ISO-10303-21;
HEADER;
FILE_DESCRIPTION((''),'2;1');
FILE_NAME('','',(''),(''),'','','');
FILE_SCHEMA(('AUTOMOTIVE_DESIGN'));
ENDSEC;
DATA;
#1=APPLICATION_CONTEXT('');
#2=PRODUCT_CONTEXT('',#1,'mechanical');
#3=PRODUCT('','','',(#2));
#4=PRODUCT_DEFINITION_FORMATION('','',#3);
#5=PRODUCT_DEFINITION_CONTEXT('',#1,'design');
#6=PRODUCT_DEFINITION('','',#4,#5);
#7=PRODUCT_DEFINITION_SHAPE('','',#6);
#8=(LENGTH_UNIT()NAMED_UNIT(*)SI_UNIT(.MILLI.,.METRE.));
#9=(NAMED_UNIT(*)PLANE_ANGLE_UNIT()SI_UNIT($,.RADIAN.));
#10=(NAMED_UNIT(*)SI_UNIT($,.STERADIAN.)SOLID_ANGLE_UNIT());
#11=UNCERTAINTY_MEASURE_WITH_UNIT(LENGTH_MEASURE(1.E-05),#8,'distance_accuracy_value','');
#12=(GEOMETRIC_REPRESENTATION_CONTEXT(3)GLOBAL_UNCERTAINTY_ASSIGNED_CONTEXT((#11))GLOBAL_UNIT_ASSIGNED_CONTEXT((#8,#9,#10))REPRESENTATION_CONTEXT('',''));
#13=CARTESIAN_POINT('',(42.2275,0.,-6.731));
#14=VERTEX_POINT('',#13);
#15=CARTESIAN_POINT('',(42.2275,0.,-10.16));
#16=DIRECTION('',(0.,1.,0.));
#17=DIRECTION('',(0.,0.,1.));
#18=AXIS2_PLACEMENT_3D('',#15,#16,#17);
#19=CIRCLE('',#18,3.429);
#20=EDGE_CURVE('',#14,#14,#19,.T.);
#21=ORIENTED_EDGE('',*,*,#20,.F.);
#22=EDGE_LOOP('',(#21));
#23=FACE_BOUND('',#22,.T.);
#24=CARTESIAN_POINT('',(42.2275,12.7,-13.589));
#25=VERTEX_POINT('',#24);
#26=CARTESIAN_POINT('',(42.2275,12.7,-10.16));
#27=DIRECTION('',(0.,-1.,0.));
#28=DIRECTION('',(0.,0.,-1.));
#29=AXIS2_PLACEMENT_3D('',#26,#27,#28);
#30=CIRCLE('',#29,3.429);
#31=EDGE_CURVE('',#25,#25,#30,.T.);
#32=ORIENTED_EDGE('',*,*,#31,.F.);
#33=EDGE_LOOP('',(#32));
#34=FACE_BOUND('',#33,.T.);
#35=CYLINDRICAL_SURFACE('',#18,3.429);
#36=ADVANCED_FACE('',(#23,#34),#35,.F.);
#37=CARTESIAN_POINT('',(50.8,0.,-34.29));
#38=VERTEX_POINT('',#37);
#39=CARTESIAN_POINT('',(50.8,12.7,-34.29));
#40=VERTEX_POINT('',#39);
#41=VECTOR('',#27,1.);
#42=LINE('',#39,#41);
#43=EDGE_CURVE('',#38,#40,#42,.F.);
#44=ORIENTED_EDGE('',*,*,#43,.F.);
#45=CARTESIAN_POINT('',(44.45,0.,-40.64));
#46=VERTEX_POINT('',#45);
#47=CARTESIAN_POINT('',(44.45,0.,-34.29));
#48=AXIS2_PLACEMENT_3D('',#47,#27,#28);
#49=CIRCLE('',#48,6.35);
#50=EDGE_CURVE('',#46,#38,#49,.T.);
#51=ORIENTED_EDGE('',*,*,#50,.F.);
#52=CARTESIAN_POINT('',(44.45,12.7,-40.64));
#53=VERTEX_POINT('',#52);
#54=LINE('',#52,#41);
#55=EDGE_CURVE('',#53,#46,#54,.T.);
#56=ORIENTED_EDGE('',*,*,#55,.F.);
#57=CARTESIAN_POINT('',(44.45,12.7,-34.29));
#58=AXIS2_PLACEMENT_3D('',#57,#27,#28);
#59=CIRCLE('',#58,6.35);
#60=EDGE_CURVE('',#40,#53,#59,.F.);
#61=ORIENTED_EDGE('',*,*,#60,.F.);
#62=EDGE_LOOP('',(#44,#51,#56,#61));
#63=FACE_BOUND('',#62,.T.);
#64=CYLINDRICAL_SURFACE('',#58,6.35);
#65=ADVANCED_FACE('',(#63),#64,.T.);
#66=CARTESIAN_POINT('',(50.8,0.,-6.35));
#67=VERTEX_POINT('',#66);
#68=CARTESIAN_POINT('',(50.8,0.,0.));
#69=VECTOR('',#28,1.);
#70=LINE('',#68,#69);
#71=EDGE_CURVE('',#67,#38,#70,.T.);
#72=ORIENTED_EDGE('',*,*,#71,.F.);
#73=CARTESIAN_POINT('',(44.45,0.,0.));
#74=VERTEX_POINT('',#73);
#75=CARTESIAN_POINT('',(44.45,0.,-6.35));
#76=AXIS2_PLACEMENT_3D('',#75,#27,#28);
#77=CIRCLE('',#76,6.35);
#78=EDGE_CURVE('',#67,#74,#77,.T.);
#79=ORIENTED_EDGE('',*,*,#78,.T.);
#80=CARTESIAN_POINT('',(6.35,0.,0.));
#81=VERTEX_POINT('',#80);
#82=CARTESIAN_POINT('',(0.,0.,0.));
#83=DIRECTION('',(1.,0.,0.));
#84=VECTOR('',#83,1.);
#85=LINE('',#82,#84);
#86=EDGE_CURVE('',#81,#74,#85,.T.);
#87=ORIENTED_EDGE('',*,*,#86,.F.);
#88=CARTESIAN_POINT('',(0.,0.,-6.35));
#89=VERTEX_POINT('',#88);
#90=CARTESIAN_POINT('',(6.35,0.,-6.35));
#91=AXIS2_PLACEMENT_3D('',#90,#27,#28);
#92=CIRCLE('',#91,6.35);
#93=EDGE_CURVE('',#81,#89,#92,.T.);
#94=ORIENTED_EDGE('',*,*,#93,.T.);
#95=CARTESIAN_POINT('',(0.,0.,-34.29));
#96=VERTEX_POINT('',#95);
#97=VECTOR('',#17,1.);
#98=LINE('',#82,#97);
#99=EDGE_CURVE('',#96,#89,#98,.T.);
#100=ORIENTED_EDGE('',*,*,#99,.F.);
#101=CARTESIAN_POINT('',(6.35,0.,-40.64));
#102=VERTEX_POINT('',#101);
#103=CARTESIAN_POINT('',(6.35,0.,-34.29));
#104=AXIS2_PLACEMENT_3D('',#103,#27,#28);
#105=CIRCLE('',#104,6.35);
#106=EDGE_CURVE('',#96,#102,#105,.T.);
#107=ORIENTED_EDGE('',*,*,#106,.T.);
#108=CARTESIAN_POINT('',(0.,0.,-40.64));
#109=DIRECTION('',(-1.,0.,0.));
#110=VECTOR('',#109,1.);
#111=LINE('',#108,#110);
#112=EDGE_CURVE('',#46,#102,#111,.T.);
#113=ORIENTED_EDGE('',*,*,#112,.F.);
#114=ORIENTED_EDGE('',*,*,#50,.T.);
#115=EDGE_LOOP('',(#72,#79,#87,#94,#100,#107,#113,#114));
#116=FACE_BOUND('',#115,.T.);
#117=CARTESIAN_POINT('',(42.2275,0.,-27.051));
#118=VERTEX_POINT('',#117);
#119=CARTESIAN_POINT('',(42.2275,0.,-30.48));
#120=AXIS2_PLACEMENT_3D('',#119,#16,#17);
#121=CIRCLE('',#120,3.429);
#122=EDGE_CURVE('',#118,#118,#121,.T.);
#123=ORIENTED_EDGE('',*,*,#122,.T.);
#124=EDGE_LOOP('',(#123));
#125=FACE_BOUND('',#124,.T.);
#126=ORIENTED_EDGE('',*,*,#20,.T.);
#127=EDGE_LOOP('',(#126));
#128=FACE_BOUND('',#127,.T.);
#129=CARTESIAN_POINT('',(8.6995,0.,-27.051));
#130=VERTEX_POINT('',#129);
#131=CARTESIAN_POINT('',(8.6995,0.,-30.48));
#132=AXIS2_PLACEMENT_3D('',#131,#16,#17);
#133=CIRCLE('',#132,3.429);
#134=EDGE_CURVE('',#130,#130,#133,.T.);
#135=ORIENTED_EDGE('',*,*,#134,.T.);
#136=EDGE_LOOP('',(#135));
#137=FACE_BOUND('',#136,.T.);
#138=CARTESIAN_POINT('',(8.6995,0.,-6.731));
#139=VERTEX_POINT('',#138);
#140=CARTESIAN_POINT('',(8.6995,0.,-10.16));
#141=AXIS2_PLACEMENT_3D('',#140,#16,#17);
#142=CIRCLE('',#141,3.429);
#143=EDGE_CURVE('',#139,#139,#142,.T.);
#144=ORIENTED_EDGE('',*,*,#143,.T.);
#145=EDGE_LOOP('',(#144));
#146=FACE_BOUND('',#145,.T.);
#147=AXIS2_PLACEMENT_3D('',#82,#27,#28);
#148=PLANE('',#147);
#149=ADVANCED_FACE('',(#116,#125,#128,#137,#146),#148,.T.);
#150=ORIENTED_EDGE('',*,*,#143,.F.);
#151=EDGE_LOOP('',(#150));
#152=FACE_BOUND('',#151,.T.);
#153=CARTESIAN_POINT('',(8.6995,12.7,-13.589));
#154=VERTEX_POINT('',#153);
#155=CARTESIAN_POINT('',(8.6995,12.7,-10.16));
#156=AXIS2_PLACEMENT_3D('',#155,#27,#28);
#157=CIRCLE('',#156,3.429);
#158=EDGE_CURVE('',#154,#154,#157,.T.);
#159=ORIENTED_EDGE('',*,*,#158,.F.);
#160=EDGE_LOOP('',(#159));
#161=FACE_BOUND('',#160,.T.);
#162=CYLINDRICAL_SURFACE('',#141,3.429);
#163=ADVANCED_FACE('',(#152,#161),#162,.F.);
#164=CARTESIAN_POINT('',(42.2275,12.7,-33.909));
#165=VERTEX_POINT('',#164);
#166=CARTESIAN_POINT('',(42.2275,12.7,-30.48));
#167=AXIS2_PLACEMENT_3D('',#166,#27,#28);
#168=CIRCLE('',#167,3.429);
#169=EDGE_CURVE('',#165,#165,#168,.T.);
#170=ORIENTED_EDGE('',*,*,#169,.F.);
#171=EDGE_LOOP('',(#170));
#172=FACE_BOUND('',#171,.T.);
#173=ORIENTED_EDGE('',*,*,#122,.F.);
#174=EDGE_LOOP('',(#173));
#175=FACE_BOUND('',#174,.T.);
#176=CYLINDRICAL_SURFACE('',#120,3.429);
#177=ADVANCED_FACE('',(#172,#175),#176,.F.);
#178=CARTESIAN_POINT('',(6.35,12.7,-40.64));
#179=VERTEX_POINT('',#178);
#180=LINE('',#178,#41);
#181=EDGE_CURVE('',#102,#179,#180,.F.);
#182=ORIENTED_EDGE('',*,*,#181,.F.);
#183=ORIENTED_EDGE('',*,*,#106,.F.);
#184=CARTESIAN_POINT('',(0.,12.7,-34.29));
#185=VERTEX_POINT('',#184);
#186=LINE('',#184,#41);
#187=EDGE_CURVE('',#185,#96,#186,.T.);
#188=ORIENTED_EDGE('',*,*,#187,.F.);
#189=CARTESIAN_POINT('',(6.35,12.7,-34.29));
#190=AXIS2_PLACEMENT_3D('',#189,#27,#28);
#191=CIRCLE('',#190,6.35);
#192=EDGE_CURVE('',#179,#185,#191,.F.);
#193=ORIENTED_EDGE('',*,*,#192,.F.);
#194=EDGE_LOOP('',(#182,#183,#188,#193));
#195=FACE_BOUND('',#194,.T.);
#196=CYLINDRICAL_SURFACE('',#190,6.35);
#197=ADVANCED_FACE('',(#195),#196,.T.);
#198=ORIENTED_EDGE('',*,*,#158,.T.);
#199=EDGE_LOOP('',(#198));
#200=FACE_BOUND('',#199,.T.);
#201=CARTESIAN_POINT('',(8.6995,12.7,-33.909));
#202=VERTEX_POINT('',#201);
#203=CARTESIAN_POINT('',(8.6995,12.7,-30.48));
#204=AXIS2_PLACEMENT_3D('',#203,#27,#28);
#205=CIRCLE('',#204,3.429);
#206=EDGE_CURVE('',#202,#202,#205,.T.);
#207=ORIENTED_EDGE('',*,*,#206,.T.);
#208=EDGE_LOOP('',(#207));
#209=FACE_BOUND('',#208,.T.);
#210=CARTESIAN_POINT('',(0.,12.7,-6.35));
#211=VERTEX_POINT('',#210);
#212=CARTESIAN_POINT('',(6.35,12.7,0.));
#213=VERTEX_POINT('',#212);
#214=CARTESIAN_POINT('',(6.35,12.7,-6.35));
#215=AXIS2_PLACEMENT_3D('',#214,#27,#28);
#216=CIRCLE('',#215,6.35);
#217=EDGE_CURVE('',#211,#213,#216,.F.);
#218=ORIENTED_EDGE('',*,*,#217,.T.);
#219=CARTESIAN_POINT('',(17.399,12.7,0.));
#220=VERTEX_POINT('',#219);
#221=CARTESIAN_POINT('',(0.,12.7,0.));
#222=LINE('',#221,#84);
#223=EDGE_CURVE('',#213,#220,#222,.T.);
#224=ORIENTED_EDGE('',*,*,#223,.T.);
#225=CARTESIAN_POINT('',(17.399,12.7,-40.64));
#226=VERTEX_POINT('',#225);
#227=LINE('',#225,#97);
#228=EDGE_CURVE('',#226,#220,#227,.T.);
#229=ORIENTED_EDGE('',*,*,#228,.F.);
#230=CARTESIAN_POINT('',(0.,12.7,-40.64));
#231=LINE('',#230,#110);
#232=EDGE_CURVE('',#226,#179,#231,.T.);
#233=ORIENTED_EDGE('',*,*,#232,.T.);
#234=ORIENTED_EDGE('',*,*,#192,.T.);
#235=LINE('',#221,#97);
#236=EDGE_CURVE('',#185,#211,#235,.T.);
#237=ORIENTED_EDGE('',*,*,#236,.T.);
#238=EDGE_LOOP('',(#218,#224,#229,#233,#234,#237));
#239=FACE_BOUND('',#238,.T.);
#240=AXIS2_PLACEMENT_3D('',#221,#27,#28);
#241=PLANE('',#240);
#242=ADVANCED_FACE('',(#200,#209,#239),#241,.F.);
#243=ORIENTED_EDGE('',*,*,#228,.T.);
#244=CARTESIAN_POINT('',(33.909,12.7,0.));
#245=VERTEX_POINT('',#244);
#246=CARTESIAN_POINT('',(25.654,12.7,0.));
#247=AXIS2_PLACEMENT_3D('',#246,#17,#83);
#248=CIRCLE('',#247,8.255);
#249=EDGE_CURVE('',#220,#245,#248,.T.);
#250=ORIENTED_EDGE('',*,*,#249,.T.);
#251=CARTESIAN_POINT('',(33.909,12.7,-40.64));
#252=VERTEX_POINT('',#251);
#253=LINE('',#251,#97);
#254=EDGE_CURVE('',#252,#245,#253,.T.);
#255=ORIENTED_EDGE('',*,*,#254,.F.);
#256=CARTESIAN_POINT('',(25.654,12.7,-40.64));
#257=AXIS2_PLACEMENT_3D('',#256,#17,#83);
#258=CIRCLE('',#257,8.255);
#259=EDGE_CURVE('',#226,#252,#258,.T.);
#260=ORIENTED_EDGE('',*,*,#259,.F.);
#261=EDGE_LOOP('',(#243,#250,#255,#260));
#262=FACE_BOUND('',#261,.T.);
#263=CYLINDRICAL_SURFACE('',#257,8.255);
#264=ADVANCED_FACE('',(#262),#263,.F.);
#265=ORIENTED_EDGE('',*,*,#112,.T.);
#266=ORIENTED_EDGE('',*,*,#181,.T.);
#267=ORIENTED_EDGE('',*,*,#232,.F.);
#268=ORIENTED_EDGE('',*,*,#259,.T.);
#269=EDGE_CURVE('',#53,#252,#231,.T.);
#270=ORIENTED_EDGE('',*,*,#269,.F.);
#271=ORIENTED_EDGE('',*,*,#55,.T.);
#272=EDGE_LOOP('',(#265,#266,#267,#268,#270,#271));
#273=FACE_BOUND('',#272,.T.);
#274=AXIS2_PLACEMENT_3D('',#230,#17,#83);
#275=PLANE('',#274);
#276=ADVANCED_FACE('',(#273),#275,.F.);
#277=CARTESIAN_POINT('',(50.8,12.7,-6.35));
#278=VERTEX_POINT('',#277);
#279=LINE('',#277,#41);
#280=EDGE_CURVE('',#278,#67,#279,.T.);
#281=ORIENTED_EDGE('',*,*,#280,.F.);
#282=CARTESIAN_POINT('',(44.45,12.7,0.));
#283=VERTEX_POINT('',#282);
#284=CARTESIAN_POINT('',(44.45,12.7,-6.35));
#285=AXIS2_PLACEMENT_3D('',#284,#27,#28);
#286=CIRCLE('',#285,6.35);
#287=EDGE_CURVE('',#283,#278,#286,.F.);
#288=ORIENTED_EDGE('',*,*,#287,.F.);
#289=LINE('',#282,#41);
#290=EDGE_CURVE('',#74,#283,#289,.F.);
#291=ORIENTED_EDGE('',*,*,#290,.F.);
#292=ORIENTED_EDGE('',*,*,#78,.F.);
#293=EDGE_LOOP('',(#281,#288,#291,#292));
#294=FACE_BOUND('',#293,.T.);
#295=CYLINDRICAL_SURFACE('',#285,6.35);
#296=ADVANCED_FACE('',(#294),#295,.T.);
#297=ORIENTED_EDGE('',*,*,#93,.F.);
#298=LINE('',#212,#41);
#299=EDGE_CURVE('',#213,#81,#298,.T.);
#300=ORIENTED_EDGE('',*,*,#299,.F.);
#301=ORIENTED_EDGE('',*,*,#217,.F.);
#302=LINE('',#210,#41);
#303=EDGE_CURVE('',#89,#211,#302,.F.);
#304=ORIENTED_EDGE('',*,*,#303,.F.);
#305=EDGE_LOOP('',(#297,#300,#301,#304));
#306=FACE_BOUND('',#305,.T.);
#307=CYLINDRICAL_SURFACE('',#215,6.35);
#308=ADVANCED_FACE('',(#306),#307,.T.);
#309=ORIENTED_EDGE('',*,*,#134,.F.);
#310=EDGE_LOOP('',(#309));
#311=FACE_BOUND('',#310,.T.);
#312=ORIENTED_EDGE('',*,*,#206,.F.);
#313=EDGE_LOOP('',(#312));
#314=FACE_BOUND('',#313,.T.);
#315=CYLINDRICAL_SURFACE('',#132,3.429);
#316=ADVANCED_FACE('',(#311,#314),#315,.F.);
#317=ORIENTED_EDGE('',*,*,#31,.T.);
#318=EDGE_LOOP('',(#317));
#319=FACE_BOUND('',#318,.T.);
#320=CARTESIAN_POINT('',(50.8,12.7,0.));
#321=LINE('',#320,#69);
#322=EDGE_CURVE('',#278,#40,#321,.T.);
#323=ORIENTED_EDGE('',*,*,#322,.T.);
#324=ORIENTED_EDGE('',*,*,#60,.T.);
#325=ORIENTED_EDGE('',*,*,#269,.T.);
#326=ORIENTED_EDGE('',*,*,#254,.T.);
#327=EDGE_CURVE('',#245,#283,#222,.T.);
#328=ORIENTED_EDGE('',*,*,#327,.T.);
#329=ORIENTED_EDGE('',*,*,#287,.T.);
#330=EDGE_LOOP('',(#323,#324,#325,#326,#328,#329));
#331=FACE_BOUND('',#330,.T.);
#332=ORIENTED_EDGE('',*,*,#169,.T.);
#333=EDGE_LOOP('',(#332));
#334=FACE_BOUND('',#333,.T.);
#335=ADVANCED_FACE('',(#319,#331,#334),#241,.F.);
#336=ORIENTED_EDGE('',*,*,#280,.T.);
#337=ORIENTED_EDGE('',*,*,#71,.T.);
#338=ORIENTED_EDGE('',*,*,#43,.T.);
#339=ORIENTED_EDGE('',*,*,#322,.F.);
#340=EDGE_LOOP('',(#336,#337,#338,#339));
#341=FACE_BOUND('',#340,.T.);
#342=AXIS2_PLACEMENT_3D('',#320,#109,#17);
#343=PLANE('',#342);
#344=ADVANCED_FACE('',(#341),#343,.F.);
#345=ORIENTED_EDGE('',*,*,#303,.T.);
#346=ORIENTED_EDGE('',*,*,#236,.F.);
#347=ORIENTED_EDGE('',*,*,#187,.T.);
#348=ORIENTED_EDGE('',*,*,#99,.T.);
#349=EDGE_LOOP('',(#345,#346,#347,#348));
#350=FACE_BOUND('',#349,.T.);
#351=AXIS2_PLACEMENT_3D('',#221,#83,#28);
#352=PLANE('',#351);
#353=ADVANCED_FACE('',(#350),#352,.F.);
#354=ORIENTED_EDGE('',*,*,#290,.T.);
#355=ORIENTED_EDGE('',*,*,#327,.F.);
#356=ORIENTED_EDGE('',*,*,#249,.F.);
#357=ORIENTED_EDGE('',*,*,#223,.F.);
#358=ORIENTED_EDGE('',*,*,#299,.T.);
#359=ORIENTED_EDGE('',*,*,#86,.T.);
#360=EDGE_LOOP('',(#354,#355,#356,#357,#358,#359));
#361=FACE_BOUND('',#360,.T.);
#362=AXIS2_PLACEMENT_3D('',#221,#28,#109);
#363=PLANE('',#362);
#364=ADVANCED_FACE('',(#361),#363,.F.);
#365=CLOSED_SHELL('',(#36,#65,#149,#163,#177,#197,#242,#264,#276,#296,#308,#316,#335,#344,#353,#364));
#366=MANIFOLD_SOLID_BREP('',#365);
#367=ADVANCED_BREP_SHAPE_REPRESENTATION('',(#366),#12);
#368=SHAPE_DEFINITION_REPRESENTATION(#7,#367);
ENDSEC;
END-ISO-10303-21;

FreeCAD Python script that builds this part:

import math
import FreeCAD as App
import Part
import Sketcher
from FreeCAD import Vector
Q = App.Units.Quantity


def edges_at(feature, points):
    """Names of the edges that pass closest to the given points."""
    edges = feature.Shape.Edges
    near = lambda p: min(range(len(edges)), key=lambda i: edges[i].distToShape(Part.Vertex(*p))[0])
    return sorted({f"Edge{near(p) + 1}" for p in points})

doc = App.newDocument("Part")
body = doc.addObject("PartDesign::Body", "Body")

sketch1 = body.newObject("Sketcher::SketchObject", "Sketch")
sketch1.AttachmentSupport = (doc.getObject("XZ_Plane"), [""])
sketch1.MapMode = "FlatFace"
sketch1.addGeometry([
    Part.LineSegment(Vector(0, -41, 0), Vector(0, 0, 0)),
    Part.LineSegment(Vector(0, 0, 0), Vector(51, 0, 0)),
    Part.LineSegment(Vector(51, 0, 0), Vector(51, -41, 0)),
    Part.LineSegment(Vector(51, -41, 0), Vector(0, -41, 0)),
], False)
sketch1.addConstraint([
    Sketcher.Constraint("Coincident", 0, 2, 1, 1),
    Sketcher.Constraint("Coincident", 1, 2, 2, 1),
    Sketcher.Constraint("Coincident", 2, 2, 3, 1),
    Sketcher.Constraint("Coincident", 3, 2, 0, 1),
    Sketcher.Constraint("Vertical", 0),
    Sketcher.Constraint("Horizontal", 1),
    Sketcher.Constraint("Vertical", 2),
    Sketcher.Constraint("Horizontal", 3),
    Sketcher.Constraint("Coincident", 0, 2, -1, 1),
    Sketcher.Constraint("DistanceX", 1, 1, 1, 2, Q("2 in")),
    Sketcher.Constraint("DistanceY", 0, 1, 0, 2, Q("1.6 in")),
])
pad1 = body.newObject("PartDesign::Pad", "Pad")
pad1.Profile = sketch1
pad1.Length = Q("0.5 in")
pad1.Reversed = True

sketch2 = body.newObject("Sketcher::SketchObject", "Sketch001")
sketch2.AttachmentSupport = (doc.getObject("XY_Plane"), [""])
sketch2.MapMode = "FlatFace"
sketch2.addGeometry([
    Part.LineSegment(Vector(34, 13, 0), Vector(17, 13, 0)),
    Part.ArcOfCircle(Part.Circle(Vector(26, 13, 0), Vector(0, 0, 1), 8), math.radians(-180), math.radians(-92)),
    Part.ArcOfCircle(Part.Circle(Vector(26, 13, 0), Vector(0, 0, 1), 8), math.radians(-92), math.radians(0)),
], False)
sketch2.addConstraint([
    Sketcher.Constraint("Coincident", 0, 2, 1, 1),
    Sketcher.Constraint("Tangent", 1, 2, 2, 1),
    Sketcher.Constraint("Coincident", 2, 2, 0, 1),
    Sketcher.Constraint("Horizontal", 0),
    Sketcher.Constraint("Equal", 1, 2),
    Sketcher.Constraint("Horizontal", 2, 3, 0, 2),
    Sketcher.Constraint("DistanceX", -1, 1, 1, 2, Q("1 in")),
    Sketcher.Constraint("Radius", 1, Q("0.325 in")),
    Sketcher.Constraint("DistanceY", -1, 1, 1, 3, Q("0.5 in")),
    Sketcher.Constraint("DistanceX", -1, 1, 1, 3, Q("1.01 in")),
])
pocket1 = body.newObject("PartDesign::Pocket", "Pocket")
pocket1.Profile = sketch2
pocket1.Type = "ThroughAll"
pocket1.Midplane = True

sketch3 = body.newObject("Sketcher::SketchObject", "Sketch002")
sketch3.AttachmentSupport = (doc.getObject("XZ_Plane"), [""])
sketch3.MapMode = "FlatFace"
sketch3.AttachmentOffset = App.Placement(Vector(0, 0, -0.5 * 25.4), App.Rotation())
sketch3.addGeometry([
    Part.Circle(Vector(8.7, -10.2, 0), Vector(0, 0, 1), 3.4),
    Part.Circle(Vector(42.2, -10.2, 0), Vector(0, 0, 1), 3.4),
    Part.Circle(Vector(42.2, -30.5, 0), Vector(0, 0, 1), 3.4),
    Part.Circle(Vector(8.7, -30.5, 0), Vector(0, 0, 1), 3.4),
], False)
sketch3.addConstraint([
    Sketcher.Constraint("Equal", 0, 1),
    Sketcher.Constraint("Equal", 1, 2),
    Sketcher.Constraint("Equal", 2, 3),
    Sketcher.Constraint("Horizontal", 0, 3, 1, 3),
    Sketcher.Constraint("Horizontal", 2, 3, 3, 3),
    Sketcher.Constraint("Vertical", 1, 3, 2, 3),
    Sketcher.Constraint("Vertical", 0, 3, 3, 3),
    Sketcher.Constraint("Diameter", 0, Q("0.27 in")),
    Sketcher.Constraint("DistanceY", 0, 3, -1, 1, Q("0.4 in")),
    Sketcher.Constraint("DistanceY", 2, 3, -1, 1, Q("1.2 in")),
    Sketcher.Constraint("DistanceX", 0, 3, 1, 3, Q("1.32 in")),
    Sketcher.Constraint("DistanceX", -1, 1, 0, 3, Q("0.3425 in")),
])
pocket2 = body.newObject("PartDesign::Pocket", "Pocket001")
pocket2.Profile = sketch3
pocket2.Type = "ThroughAll"
pocket2.Midplane = True
doc.recompute()

fillet = body.newObject("PartDesign::Fillet", "Fillet")
fillet.Base = (pocket2, edges_at(pocket2, [
    (0, 6.35, -40.64),
    (50.8, 6.35, -40.64),
    (50.8, 6.35, 0),
    (0, 6.35, 0),
]))
fillet.Radius = Q("0.25 in")

doc.recompute()
